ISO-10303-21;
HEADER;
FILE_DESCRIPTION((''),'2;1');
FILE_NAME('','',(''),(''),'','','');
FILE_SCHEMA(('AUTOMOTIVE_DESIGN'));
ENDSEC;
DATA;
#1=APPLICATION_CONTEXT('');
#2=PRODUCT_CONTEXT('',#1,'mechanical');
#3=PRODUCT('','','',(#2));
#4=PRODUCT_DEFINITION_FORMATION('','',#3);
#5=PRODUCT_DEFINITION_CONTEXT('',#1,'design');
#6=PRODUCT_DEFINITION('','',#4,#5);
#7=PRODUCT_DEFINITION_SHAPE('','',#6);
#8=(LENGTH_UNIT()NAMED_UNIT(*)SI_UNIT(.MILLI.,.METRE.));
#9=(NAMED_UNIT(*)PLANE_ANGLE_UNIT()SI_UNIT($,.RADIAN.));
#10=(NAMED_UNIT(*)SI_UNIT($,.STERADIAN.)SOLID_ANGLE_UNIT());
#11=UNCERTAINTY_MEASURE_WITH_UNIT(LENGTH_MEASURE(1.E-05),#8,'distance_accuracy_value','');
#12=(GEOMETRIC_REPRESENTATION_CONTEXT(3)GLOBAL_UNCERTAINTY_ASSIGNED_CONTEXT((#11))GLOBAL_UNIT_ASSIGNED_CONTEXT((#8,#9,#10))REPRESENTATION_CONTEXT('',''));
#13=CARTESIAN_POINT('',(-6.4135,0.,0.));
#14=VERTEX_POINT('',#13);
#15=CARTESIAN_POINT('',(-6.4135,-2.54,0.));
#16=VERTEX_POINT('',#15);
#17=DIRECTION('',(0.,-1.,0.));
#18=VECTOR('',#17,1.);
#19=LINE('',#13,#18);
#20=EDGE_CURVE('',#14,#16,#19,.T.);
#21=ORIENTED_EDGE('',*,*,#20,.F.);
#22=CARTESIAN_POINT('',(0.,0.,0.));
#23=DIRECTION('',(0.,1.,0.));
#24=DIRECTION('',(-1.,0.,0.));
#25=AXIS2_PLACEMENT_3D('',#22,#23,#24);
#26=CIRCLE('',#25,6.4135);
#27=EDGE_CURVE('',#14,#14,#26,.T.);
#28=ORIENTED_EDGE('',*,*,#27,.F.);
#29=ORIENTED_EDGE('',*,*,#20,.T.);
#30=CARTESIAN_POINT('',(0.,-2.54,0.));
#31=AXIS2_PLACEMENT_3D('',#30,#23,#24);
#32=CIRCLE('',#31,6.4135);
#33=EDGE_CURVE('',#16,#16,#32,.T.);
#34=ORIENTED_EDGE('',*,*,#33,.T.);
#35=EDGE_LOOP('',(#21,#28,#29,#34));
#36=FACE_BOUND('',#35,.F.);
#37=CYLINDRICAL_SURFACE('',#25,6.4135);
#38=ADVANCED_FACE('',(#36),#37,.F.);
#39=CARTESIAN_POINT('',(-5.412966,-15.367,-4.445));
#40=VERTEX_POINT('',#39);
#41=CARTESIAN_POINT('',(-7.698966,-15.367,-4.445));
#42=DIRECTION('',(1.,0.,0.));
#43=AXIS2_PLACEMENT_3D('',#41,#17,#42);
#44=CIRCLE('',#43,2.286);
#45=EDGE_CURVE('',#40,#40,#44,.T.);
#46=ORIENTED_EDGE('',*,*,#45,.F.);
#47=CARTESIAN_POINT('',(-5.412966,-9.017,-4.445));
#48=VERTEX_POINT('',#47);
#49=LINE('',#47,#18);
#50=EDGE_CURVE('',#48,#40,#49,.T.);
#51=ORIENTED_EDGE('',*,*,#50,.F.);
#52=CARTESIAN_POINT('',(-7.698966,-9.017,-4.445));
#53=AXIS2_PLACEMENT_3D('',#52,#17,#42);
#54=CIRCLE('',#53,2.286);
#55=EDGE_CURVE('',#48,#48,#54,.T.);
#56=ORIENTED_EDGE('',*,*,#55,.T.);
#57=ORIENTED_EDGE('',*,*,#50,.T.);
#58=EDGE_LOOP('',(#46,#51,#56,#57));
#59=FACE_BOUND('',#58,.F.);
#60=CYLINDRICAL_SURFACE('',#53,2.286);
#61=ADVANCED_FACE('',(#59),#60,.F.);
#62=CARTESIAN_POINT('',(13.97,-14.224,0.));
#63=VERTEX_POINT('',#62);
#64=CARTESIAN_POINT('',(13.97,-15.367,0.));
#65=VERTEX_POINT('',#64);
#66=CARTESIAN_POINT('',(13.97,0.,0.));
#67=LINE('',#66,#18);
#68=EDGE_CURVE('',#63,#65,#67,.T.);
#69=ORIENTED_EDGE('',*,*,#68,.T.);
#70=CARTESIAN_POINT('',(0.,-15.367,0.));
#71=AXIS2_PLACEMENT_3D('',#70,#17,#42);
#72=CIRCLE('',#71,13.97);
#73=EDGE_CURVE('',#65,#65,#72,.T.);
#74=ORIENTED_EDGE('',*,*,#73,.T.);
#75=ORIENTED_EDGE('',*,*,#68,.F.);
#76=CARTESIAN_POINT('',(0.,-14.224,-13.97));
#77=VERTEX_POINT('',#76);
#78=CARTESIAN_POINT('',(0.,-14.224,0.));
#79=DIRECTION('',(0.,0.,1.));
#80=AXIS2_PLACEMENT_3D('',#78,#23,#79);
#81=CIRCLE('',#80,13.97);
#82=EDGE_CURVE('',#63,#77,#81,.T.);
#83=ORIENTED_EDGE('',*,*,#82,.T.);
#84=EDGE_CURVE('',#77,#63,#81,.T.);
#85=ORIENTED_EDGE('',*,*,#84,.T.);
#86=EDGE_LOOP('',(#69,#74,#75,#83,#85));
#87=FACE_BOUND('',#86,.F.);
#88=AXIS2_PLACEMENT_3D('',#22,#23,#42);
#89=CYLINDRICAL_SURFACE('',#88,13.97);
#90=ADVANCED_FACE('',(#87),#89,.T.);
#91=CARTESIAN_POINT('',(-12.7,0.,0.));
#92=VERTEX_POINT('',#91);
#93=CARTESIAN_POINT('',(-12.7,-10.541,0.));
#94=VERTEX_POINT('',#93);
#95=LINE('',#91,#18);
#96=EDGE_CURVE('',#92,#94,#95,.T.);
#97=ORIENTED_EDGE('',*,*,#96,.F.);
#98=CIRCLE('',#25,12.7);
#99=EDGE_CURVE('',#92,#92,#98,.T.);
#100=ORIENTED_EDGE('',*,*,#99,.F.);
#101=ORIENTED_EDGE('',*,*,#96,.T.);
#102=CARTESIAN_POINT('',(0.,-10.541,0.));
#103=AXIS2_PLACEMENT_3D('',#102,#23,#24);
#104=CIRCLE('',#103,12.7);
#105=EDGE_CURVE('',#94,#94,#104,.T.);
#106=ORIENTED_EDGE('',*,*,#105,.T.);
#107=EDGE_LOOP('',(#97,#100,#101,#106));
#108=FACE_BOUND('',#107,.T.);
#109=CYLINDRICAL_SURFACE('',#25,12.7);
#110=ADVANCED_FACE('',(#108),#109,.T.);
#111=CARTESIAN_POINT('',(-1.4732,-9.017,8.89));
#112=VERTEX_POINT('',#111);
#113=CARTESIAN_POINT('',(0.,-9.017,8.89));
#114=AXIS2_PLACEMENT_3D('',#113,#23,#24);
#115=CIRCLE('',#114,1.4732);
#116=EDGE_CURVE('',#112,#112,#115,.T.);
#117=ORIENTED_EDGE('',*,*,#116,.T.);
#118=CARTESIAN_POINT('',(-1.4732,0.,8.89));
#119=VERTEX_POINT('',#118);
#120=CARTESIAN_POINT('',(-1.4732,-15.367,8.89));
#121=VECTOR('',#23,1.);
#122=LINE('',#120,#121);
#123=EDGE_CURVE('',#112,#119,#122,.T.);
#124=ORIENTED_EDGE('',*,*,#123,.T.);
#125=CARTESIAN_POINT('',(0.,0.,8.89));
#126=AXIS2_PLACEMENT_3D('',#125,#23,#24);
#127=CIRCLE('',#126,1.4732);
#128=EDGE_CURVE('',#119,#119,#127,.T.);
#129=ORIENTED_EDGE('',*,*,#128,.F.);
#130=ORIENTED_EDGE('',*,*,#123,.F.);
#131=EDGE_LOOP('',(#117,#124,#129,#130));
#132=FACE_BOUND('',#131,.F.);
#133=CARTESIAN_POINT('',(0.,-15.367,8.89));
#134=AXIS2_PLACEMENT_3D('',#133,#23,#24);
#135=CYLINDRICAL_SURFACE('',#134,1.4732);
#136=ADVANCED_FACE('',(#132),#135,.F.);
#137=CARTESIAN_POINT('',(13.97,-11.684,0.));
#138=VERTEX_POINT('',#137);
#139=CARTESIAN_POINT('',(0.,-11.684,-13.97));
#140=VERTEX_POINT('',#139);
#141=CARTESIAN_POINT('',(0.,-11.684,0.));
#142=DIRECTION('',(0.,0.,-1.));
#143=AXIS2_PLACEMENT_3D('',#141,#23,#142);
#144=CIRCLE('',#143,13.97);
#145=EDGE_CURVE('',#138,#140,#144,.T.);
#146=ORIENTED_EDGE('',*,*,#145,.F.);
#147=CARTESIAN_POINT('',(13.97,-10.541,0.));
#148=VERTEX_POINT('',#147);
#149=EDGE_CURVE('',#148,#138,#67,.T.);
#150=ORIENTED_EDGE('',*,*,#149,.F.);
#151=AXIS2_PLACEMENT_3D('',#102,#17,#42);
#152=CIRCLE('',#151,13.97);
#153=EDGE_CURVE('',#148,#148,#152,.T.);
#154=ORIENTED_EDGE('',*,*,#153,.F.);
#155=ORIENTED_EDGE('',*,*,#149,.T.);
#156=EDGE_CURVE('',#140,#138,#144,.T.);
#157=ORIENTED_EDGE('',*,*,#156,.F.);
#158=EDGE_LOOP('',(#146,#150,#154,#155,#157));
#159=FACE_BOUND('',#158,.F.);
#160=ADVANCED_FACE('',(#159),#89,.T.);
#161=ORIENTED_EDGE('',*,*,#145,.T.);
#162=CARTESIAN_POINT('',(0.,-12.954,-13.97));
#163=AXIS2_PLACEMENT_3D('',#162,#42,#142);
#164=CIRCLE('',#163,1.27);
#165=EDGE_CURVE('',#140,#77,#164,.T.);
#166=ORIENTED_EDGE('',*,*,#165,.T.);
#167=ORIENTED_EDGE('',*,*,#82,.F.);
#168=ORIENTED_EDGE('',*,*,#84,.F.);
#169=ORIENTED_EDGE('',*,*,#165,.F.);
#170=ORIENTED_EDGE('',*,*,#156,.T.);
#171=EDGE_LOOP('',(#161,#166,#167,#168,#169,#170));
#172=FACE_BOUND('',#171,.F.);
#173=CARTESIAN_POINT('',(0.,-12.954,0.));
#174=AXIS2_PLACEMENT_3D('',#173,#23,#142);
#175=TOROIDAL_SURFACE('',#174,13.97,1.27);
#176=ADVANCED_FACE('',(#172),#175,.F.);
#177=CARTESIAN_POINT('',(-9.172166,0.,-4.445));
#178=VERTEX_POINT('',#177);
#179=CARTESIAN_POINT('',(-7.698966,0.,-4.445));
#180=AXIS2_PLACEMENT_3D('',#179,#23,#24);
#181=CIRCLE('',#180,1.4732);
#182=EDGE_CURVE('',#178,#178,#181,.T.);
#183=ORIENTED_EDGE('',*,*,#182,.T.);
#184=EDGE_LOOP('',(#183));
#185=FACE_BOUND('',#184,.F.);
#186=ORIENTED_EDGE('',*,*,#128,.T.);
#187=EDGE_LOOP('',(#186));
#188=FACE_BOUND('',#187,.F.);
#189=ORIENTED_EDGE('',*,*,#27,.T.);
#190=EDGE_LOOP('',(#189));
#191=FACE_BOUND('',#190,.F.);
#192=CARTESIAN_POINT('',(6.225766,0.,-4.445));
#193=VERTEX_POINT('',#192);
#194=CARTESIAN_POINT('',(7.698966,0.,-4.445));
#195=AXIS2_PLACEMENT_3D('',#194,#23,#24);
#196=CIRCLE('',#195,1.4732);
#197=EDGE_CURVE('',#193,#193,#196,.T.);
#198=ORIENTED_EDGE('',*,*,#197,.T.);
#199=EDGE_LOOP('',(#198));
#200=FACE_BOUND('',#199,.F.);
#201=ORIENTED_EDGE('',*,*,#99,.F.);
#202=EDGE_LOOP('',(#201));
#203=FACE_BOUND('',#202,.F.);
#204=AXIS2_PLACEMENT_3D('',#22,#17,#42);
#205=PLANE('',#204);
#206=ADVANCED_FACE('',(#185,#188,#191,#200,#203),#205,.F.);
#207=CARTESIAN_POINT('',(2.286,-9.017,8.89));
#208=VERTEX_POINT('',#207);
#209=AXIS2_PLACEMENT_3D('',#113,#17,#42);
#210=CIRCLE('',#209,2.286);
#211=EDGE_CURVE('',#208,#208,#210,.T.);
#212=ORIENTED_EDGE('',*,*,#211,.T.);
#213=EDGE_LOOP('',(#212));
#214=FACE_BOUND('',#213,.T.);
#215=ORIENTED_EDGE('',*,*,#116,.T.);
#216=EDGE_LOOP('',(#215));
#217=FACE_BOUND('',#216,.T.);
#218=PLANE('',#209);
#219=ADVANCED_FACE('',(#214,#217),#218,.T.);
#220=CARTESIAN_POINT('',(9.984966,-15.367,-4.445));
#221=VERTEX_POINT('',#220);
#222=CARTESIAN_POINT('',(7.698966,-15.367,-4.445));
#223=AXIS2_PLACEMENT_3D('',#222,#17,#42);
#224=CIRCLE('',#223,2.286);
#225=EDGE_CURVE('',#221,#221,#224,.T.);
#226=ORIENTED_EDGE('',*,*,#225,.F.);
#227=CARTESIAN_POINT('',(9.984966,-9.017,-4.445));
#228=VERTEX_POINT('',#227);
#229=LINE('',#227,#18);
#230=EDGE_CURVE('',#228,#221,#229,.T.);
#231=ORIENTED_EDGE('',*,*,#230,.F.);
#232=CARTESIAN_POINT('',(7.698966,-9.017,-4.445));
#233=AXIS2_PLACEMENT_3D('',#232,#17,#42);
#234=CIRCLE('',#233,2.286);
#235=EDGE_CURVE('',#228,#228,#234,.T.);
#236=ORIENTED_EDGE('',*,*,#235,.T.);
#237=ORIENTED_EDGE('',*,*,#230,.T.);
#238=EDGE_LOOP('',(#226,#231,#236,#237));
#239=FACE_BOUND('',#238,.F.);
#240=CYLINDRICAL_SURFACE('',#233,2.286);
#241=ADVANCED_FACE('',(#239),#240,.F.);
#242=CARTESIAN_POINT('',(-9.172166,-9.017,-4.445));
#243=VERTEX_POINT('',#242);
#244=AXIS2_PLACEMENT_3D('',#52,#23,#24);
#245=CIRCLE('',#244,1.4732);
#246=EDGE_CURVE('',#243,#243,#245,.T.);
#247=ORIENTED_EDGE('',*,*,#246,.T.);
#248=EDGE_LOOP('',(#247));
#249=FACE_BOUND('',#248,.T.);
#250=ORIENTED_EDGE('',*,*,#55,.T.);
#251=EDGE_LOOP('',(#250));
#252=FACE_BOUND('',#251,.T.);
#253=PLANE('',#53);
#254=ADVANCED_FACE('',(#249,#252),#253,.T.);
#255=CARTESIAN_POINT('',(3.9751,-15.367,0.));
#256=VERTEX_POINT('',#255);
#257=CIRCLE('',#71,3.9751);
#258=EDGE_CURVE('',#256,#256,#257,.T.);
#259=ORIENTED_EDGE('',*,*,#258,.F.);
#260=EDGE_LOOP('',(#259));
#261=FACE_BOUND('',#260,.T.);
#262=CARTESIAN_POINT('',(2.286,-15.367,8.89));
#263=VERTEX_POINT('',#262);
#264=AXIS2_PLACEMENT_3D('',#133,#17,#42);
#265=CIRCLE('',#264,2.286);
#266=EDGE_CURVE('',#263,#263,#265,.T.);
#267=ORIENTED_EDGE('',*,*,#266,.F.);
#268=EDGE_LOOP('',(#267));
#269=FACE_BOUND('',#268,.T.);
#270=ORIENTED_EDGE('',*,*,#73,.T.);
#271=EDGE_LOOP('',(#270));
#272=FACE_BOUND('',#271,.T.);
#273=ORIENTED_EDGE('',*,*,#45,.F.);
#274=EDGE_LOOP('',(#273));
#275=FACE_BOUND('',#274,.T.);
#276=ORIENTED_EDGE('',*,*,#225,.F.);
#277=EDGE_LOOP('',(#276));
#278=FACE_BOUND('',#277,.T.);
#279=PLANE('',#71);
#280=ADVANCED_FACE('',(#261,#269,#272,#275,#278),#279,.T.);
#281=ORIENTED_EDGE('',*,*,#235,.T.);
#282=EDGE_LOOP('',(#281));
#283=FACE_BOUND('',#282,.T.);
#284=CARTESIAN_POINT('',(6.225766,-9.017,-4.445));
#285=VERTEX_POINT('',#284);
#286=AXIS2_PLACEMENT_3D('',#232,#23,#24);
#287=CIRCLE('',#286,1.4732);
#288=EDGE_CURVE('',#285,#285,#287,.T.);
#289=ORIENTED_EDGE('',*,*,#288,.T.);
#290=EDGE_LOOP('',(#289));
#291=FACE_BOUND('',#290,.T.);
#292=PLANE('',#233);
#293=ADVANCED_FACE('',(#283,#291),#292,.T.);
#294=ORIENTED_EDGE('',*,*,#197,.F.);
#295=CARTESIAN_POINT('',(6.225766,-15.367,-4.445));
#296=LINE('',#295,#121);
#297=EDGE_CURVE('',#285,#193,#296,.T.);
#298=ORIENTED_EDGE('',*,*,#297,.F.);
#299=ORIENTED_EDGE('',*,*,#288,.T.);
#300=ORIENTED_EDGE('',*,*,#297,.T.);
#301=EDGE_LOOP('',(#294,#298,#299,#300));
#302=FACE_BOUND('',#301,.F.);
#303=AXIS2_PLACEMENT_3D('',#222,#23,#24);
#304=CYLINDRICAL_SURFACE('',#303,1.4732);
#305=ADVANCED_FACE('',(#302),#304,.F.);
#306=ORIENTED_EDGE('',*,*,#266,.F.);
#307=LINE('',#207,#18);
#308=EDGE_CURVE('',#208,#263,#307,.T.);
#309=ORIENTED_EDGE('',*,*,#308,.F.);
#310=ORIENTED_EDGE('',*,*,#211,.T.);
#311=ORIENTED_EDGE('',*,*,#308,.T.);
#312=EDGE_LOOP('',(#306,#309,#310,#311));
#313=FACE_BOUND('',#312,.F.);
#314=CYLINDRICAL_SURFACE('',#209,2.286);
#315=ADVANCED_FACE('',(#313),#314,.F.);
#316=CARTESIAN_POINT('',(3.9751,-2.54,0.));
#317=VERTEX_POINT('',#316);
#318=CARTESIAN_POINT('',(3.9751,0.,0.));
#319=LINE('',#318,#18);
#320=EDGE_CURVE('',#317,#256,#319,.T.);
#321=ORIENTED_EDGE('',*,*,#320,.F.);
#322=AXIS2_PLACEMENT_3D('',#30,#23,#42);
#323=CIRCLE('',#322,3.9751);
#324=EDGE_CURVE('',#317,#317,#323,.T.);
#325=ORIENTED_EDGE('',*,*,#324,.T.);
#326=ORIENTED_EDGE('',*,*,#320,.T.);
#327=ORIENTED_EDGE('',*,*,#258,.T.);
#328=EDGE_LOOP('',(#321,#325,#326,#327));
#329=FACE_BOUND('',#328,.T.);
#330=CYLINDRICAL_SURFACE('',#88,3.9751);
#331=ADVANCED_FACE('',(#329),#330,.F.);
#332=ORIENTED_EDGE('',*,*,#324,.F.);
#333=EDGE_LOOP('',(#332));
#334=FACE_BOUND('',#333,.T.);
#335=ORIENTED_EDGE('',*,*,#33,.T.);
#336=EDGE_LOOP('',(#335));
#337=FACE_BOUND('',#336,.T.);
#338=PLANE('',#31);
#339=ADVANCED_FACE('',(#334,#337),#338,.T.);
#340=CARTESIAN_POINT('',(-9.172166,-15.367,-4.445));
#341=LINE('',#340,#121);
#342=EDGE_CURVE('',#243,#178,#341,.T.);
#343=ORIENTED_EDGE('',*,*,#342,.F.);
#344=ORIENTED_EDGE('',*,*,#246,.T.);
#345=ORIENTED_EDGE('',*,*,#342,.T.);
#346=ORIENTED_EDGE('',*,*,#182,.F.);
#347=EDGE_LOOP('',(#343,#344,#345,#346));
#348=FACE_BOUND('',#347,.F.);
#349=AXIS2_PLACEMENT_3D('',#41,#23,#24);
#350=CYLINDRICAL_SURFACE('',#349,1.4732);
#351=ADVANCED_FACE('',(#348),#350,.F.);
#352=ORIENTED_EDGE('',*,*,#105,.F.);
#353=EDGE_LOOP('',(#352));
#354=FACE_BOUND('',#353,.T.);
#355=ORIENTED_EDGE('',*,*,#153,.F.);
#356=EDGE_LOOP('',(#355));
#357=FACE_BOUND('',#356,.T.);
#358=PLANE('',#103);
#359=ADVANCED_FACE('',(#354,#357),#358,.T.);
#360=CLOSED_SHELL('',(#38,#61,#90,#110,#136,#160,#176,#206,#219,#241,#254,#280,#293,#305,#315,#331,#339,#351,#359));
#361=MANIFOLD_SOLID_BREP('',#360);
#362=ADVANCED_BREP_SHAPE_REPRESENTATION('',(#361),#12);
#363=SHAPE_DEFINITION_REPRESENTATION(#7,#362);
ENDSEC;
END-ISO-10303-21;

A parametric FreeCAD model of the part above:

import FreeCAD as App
import Part
import Sketcher

V = App.Vector
Q = App.Units.Quantity

doc = App.newDocument("Part")
params = doc.addObject("Spreadsheet::Sheet", "Params")
for row, (alias, value) in enumerate([
    ("sketch1_diameter", "1.1 in"),
    ("sketch1_diameter2", "0.313 in"),
    ("pad1_length", "0.605 in"),
    ("sketch2_diameter", "0.116 in"),
    ("hole_diameter", "0.116 in"),
    ("hole_cbore_diameter", "0.18 in"),
    ("hole_cbore_depth", "0.25 in"),
    ("sketch3_diameter", "0.505 in"),
    ("sketch3_diameter2", "0.313 in"),
    ("pocket1_length", "0.1 in"),
    ("sketch4_diameter", "0.1 in"),
    ("sketch5_diameter", "1.1 in"),
    ("sketch6_diameter", "1 in"),
    ("sketch6_diameter2", "1.1 in"),
    ("pocket2_length", "0.415 in"),
], start=1):
    params.set(f"A{row}", alias)
    params.set(f"B{row}", "=" + value)
    params.setAlias(f"B{row}", alias)

body = doc.addObject("PartDesign::Body", "Body")

# Sketch on XZ plane
sketch1 = body.newObject("Sketcher::SketchObject", "Sketch")
sketch1.AttachmentSupport = (doc.getObject("XZ_Plane"), [""])
sketch1.MapMode = "FlatFace"
sketch1.addGeometry(Part.Circle(V(0, 0, 0), V(0, 0, 1), 14), False)
sketch1.addGeometry(Part.Circle(V(0, 0, 0), V(0, 0, 1), 4), False)
sketch1.addConstraint(Sketcher.Constraint("Coincident", 0, 3, -1, 1))
sketch1.addConstraint(Sketcher.Constraint("Coincident", 1, 3, -1, 1))
sketch1.addConstraint(Sketcher.Constraint("Diameter", 0, Q("1.1 in")))
sketch1.addConstraint(Sketcher.Constraint("Diameter", 1, Q("0.313 in")))
sketch1.setExpression("Constraints[2]", "Params.sketch1_diameter")
sketch1.setExpression("Constraints[3]", "Params.sketch1_diameter2")
pad1 = body.newObject("PartDesign::Pad", "Pad")
pad1.Profile = sketch1
pad1.setExpression("Length", "Params.pad1_length")

# Sketch on XZ plane
sketch2 = body.newObject("Sketcher::SketchObject", "Sketch001")
sketch2.AttachmentSupport = (doc.getObject("XZ_Plane"), [""])
sketch2.MapMode = "FlatFace"
sketch2.AttachmentOffset = App.Placement(V(0, 0, 0.605 * 25.4), App.Rotation())
sketch2.addGeometry(Part.Circle(V(0, 8.9, 0), V(0, 0, 1), 1.5), False)
sketch2.addGeometry(Part.Circle(V(-7.7, -4.4, 0), V(0, 0, 1), 1.5), False)
sketch2.addGeometry(Part.Circle(V(7.7, -4.4, 0), V(0, 0, 1), 1.5), False)
sketch2.addConstraint(Sketcher.Constraint("Equal", 0, 1))
sketch2.addConstraint(Sketcher.Constraint("Equal", 1, 2))
sketch2.addConstraint(Sketcher.Constraint("Symmetric", 1, 3, 2, 3, -2))
sketch2.addConstraint(Sketcher.Constraint("PointOnObject", 0, 3, -2))
sketch2.addConstraint(Sketcher.Constraint("Diameter", 0, Q("0.116 in")))
sketch2.addConstraint(Sketcher.Constraint("DistanceY", -1, 1, 0, 3, Q("0.35 in")))
sketch2.addConstraint(Sketcher.Constraint("DistanceY", 1, 3, -1, 1, Q("0.175 in")))
sketch2.addConstraint(Sketcher.Constraint("DistanceX", 1, 3, 2, 3, 15.397932))
sketch2.setExpression("Constraints[4]", "Params.sketch2_diameter")
doc.recompute()
hole = body.newObject("PartDesign::Hole", "Hole")
hole.Profile = sketch2
hole.ThreadType = "None"
hole.setExpression("Diameter", "Params.hole_diameter")
hole.DepthType = "ThroughAll"
hole.HoleCutType = "Counterbore"
hole.setExpression("HoleCutDiameter", "Params.hole_cbore_diameter")
hole.setExpression("HoleCutDepth", "Params.hole_cbore_depth")

# Sketch on XZ plane
sketch3 = body.newObject("Sketcher::SketchObject", "Sketch002")
sketch3.AttachmentSupport = (doc.getObject("XZ_Plane"), [""])
sketch3.MapMode = "FlatFace"
sketch3.addGeometry(Part.Circle(V(0, 0, 0), V(0, 0, 1), 6.4), False)
sketch3.addGeometry(Part.Circle(V(0, 0, 0), V(0, 0, 1), 4), False)
sketch3.addConstraint(Sketcher.Constraint("Coincident", 0, 3, -1, 1))
sketch3.addConstraint(Sketcher.Constraint("Coincident", 1, 3, -1, 1))
sketch3.addConstraint(Sketcher.Constraint("Diameter", 0, Q("0.505 in")))
sketch3.addConstraint(Sketcher.Constraint("Diameter", 1, Q("0.313 in")))
sketch3.setExpression("Constraints[2]", "Params.sketch3_diameter")
sketch3.setExpression("Constraints[3]", "Params.sketch3_diameter2")
pocket1 = body.newObject("PartDesign::Pocket", "Pocket")
pocket1.Profile = sketch3
pocket1.setExpression("Length", "Params.pocket1_length")
pocket1.Reversed = True

# Sketch on YZ plane
sketch4 = body.newObject("Sketcher::SketchObject", "Sketch003")
sketch4.AttachmentSupport = (doc.getObject("YZ_Plane"), [""])
sketch4.MapMode = "FlatFace"
sketch4.addGeometry(Part.Circle(V(-13, 14, 0), V(0, 0, 1), 1.3), False)
sketch4.addConstraint(Sketcher.Constraint("Diameter", 0, Q("0.1 in")))
sketch4.addConstraint(Sketcher.Constraint("DistanceX", 0, 3, -1, 1, Q("0.51 in")))
sketch4.addConstraint(Sketcher.Constraint("DistanceY", -1, 1, 0, 3, Q("0.55 in")))
sketch4.setExpression("Constraints[0]", "Params.sketch4_diameter")

# Sketch on XZ plane
sketch5 = body.newObject("Sketcher::SketchObject", "Sketch004")
sketch5.AttachmentSupport = (doc.getObject("XZ_Plane"), [""])
sketch5.MapMode = "FlatFace"
sketch5.AttachmentOffset = App.Placement(V(0, 0, 0.605 * 25.4), App.Rotation())
sketch5.addGeometry(Part.Circle(V(0, 0, 0), V(0, 0, 1), 14), False)
sketch5.addConstraint(Sketcher.Constraint("Coincident", 0, 3, -1, 1))
sketch5.addConstraint(Sketcher.Constraint("Diameter", 0, Q("1.1 in")))
sketch5.setExpression("Constraints[1]", "Params.sketch5_diameter")
doc.recompute()

subtractivepipe = body.newObject("PartDesign::SubtractivePipe", "SubtractivePipe")
subtractivepipe.Profile = sketch4
subtractivepipe.Spine = (sketch5, ["Edge1"])

# Sketch on XZ plane
sketch6 = body.newObject("Sketcher::SketchObject", "Sketch005")
sketch6.AttachmentSupport = (doc.getObject("XZ_Plane"), [""])
sketch6.MapMode = "FlatFace"
sketch6.addGeometry(Part.Circle(V(0, 0, 0), V(0, 0, 1), 14), False)
sketch6.addGeometry(Part.Circle(V(0, 0, 0), V(0, 0, 1), 13), False)
sketch6.addConstraint(Sketcher.Constraint("Coincident", 0, 3, -1, 1))
sketch6.addConstraint(Sketcher.Constraint("Coincident", 1, 3, -1, 1))
sketch6.addConstraint(Sketcher.Constraint("Diameter", 1, Q("1 in")))
sketch6.addConstraint(Sketcher.Constraint("Diameter", 0, Q("1.1 in")))
sketch6.setExpression("Constraints[2]", "Params.sketch6_diameter")
sketch6.setExpression("Constraints[3]", "Params.sketch6_diameter2")
pocket2 = body.newObject("PartDesign::Pocket", "Pocket001")
pocket2.Profile = sketch6
pocket2.setExpression("Length", "Params.pocket2_length")
pocket2.Reversed = True

doc.recompute()
